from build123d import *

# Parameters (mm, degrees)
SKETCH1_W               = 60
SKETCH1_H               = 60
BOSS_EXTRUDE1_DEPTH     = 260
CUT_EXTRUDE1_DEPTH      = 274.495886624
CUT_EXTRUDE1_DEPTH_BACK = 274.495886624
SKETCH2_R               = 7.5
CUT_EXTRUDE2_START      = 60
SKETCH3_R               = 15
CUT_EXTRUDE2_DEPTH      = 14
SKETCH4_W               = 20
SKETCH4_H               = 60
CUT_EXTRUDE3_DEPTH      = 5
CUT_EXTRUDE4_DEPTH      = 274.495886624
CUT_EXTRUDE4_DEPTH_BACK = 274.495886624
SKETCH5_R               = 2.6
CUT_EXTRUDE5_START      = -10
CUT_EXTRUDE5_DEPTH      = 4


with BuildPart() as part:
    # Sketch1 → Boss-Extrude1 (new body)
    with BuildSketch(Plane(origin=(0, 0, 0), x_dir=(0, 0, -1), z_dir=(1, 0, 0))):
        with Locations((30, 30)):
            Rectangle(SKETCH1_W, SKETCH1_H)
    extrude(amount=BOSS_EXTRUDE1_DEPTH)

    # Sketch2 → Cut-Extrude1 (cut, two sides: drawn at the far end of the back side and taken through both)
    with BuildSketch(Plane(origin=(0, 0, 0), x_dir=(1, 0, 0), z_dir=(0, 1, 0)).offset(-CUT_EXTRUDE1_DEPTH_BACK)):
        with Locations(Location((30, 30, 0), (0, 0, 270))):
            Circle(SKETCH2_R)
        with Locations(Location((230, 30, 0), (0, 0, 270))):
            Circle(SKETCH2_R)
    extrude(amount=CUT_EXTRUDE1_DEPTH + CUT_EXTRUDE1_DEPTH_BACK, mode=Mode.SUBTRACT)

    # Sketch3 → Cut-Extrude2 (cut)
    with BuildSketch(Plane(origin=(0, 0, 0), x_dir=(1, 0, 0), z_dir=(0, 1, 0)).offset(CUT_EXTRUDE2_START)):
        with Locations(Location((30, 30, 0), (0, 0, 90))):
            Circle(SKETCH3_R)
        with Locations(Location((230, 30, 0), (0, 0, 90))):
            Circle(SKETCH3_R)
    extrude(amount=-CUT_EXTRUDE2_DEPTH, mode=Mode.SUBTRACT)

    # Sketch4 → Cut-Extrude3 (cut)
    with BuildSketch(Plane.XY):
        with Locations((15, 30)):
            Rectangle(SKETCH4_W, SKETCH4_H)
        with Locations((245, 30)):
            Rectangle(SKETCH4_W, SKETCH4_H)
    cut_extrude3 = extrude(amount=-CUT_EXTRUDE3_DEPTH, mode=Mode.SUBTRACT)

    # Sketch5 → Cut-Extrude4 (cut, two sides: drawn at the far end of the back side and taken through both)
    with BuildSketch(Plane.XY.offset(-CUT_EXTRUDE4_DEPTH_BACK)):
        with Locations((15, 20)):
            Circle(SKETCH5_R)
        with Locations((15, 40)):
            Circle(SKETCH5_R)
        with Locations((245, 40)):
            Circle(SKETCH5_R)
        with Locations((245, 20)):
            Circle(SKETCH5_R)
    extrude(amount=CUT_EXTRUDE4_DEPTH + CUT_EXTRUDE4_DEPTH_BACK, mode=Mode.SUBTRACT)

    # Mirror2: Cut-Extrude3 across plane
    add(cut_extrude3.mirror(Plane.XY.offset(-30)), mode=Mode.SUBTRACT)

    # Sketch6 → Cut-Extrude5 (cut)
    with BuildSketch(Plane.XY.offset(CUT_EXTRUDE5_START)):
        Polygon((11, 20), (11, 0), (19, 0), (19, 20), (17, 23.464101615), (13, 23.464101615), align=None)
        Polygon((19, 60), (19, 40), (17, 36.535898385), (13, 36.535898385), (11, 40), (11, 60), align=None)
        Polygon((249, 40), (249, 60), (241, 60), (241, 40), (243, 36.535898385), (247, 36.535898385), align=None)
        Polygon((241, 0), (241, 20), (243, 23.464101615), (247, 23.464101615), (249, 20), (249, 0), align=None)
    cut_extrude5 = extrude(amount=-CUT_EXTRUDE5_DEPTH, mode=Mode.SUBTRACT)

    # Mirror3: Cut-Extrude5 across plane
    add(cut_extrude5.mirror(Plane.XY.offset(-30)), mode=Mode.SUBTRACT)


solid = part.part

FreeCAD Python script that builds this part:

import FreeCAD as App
import Part
import Sketcher

V = App.Vector
Q = App.Units.Quantity

doc = App.newDocument("Part")
body = doc.addObject("PartDesign::Body", "Body")

# Sketch on YZ plane
sketch1 = body.newObject("Sketcher::SketchObject", "Sketch")
sketch1.AttachmentSupport = (doc.getObject("YZ_Plane"), [""])
sketch1.MapMode = "FlatFace"
sketch1.addGeometry(Part.LineSegment(V(60, 0, 0), V(0, 0, 0)), False)
sketch1.addGeometry(Part.LineSegment(V(0, 0, 0), V(0, -60, 0)), False)
sketch1.addGeometry(Part.LineSegment(V(0, -60, 0), V(60, -60, 0)), False)
sketch1.addGeometry(Part.LineSegment(V(60, -60, 0), V(60, 0, 0)), False)
sketch1.addConstraint(Sketcher.Constraint("Coincident", 0, 2, 1, 1))
sketch1.addConstraint(Sketcher.Constraint("Coincident", 1, 2, 2, 1))
sketch1.addConstraint(Sketcher.Constraint("Coincident", 2, 2, 3, 1))
sketch1.addConstraint(Sketcher.Constraint("Coincident", 3, 2, 0, 1))
sketch1.addConstraint(Sketcher.Constraint("Horizontal", 0))
sketch1.addConstraint(Sketcher.Constraint("Vertical", 1))
sketch1.addConstraint(Sketcher.Constraint("Horizontal", 2))
sketch1.addConstraint(Sketcher.Constraint("Vertical", 3))
sketch1.addConstraint(Sketcher.Constraint("Coincident", 0, 2, -1, 1))
sketch1.addConstraint(Sketcher.Constraint("Equal", 2, 1))
sketch1.addConstraint(Sketcher.Constraint("DistanceX", 0, 2, 0, 1, Q("60 mm")))
pad1 = body.newObject("PartDesign::Pad", "Pad")
pad1.Profile = sketch1
pad1.Length = 260

# Sketch on XZ plane
sketch2 = body.newObject("Sketcher::SketchObject", "Sketch001")
sketch2.AttachmentSupport = (doc.getObject("XZ_Plane"), [""])
sketch2.MapMode = "FlatFace"
sketch2.addGeometry(Part.Circle(V(30, -30, 0), V(0, 0, 1), 8), False)
sketch2.addGeometry(Part.Circle(V(230, -30, 0), V(0, 0, 1), 8), False)
sketch2.addConstraint(Sketcher.Constraint("Equal", 0, 1))
sketch2.addConstraint(Sketcher.Constraint("Horizontal", 0, 3, 1, 3))
sketch2.addConstraint(Sketcher.Constraint("Diameter", 0, Q("15 mm")))
sketch2.addConstraint(Sketcher.Constraint("DistanceX", -1, 1, 0, 3, Q("30 mm")))
sketch2.addConstraint(Sketcher.Constraint("DistanceY", 0, 3, -1, 1, Q("30 mm")))
sketch2.addConstraint(Sketcher.Constraint("DistanceX", -1, 1, 1, 3, Q("230 mm")))
pocket1 = body.newObject("PartDesign::Pocket", "Pocket")
pocket1.Profile = sketch2
pocket1.Type = "ThroughAll"
pocket1.Midplane = True

# Sketch on XZ plane
sketch3 = body.newObject("Sketcher::SketchObject", "Sketch002")
sketch3.AttachmentSupport = (doc.getObject("XZ_Plane"), [""])
sketch3.MapMode = "FlatFace"
sketch3.AttachmentOffset = App.Placement(V(0, 0, -60), App.Rotation())
sketch3.addGeometry(Part.Circle(V(30, -30, 0), V(0, 0, 1), 15), False)
sketch3.addGeometry(Part.Circle(V(230, -30, 0), V(0, 0, 1), 15), False)
sketch3.addConstraint(Sketcher.Constraint("Equal", 0, 1))
sketch3.addConstraint(Sketcher.Constraint("Horizontal", 0, 3, 1, 3))
sketch3.addConstraint(Sketcher.Constraint("Diameter", 0, Q("30 mm")))
sketch3.addConstraint(Sketcher.Constraint("DistanceX", -1, 1, 0, 3, Q("30 mm")))
sketch3.addConstraint(Sketcher.Constraint("DistanceY", 0, 3, -1, 1, Q("30 mm")))
sketch3.addConstraint(Sketcher.Constraint("DistanceX", -1, 1, 1, 3, Q("230 mm")))
pocket2 = body.newObject("PartDesign::Pocket", "Pocket001")
pocket2.Profile = sketch3
pocket2.Length = 14
pocket2.Reversed = True

# Sketch on XY plane
sketch4 = body.newObject("Sketcher::SketchObject", "Sketch003")
sketch4.AttachmentSupport = (doc.getObject("XY_Plane"), [""])
sketch4.MapMode = "FlatFace"
sketch4.addGeometry(Part.LineSegment(V(5, 60, 0), V(5, 0, 0)), False)
sketch4.addGeometry(Part.LineSegment(V(5, 0, 0), V(25, 0, 0)), False)
sketch4.addGeometry(Part.LineSegment(V(25, 0, 0), V(25, 60, 0)), False)
sketch4.addGeometry(Part.LineSegment(V(25, 60, 0), V(5, 60, 0)), False)
sketch4.addGeometry(Part.LineSegment(V(235, 60, 0), V(235, 0, 0)), False)
sketch4.addGeometry(Part.LineSegment(V(235, 0, 0), V(255, 0, 0)), False)
sketch4.addGeometry(Part.LineSegment(V(255, 0, 0), V(255, 60, 0)), False)
sketch4.addGeometry(Part.LineSegment(V(255, 60, 0), V(235, 60, 0)), False)
sketch4.addConstraint(Sketcher.Constraint("Coincident", 0, 2, 1, 1))
sketch4.addConstraint(Sketcher.Constraint("Coincident", 1, 2, 2, 1))
sketch4.addConstraint(Sketcher.Constraint("Coincident", 2, 2, 3, 1))
sketch4.addConstraint(Sketcher.Constraint("Coincident", 3, 2, 0, 1))
sketch4.addConstraint(Sketcher.Constraint("Coincident", 4, 2, 5, 1))
sketch4.addConstraint(Sketcher.Constraint("Coincident", 5, 2, 6, 1))
sketch4.addConstraint(Sketcher.Constraint("Coincident", 6, 2, 7, 1))
sketch4.addConstraint(Sketcher.Constraint("Coincident", 7, 2, 4, 1))
sketch4.addConstraint(Sketcher.Constraint("Vertical", 0))
sketch4.addConstraint(Sketcher.Constraint("Horizontal", 1))
sketch4.addConstraint(Sketcher.Constraint("Vertical", 2))
sketch4.addConstraint(Sketcher.Constraint("Horizontal", 3))
sketch4.addConstraint(Sketcher.Constraint("Vertical", 4))
sketch4.addConstraint(Sketcher.Constraint("Horizontal", 5))
sketch4.addConstraint(Sketcher.Constraint("Vertical", 6))
sketch4.addConstraint(Sketcher.Constraint("Horizontal", 7))
sketch4.addConstraint(Sketcher.Constraint("PointOnObject", 0, 2, -1))
sketch4.addConstraint(Sketcher.Constraint("PointOnObject", 4, 2, -1))
sketch4.addConstraint(Sketcher.Constraint("Horizontal", 3, 2, 6, 2))
sketch4.addConstraint(Sketcher.Constraint("Equal", 3, 5))
sketch4.addConstraint(Sketcher.Constraint("DistanceX", 1, 1, 1, 2, Q("20 mm")))
sketch4.addConstraint(Sketcher.Constraint("DistanceY", 0, 2, 0, 1, Q("60 mm")))
sketch4.addConstraint(Sketcher.Constraint("DistanceX", -1, 1, 0, 2, Q("5 mm")))
sketch4.addConstraint(Sketcher.Constraint("DistanceX", -1, 1, 4, 2, Q("235 mm")))
pocket3 = body.newObject("PartDesign::Pocket", "Pocket002")
pocket3.Profile = sketch4
pocket3.Length = 5

# Sketch on XY plane
sketch5 = body.newObject("Sketcher::SketchObject", "Sketch004")
sketch5.AttachmentSupport = (doc.getObject("XY_Plane"), [""])
sketch5.MapMode = "FlatFace"
sketch5.addGeometry(Part.Circle(V(15, 20, 0), V(0, 0, 1), 2.6), False)
sketch5.addGeometry(Part.Circle(V(15, 40, 0), V(0, 0, 1), 2.6), False)
sketch5.addGeometry(Part.Circle(V(245, 40, 0), V(0, 0, 1), 2.6), False)
sketch5.addGeometry(Part.Circle(V(245, 20, 0), V(0, 0, 1), 2.6), False)
sketch5.addConstraint(Sketcher.Constraint("Equal", 0, 1))
sketch5.addConstraint(Sketcher.Constraint("Equal", 1, 2))
sketch5.addConstraint(Sketcher.Constraint("Equal", 2, 3))
sketch5.addConstraint(Sketcher.Constraint("Horizontal", 1, 3, 2, 3))
sketch5.addConstraint(Sketcher.Constraint("Horizontal", 0, 3, 3, 3))
sketch5.addConstraint(Sketcher.Constraint("Vertical", 0, 3, 1, 3))
sketch5.addConstraint(Sketcher.Constraint("Vertical", 2, 3, 3, 3))
sketch5.addConstraint(Sketcher.Constraint("Diameter", 0, Q("5.2 mm")))
sketch5.addConstraint(Sketcher.Constraint("DistanceX", -1, 1, 0, 3, Q("15 mm")))
sketch5.addConstraint(Sketcher.Constraint("DistanceY", -1, 1, 0, 3, Q("20 mm")))
sketch5.addConstraint(Sketcher.Constraint("DistanceY", -1, 1, 1, 3, Q("40 mm")))
sketch5.addConstraint(Sketcher.Constraint("DistanceX", -1, 1, 2, 3, Q("245 mm")))
pocket4 = body.newObject("PartDesign::Pocket", "Pocket003")
pocket4.Profile = sketch5
pocket4.Type = "ThroughAll"
pocket4.Midplane = True
doc.recompute()

datumplane = body.newObject("PartDesign::Plane", "DatumPlane")
datumplane.AttachmentSupport = (doc.getObject("XY_Plane"), [""])
datumplane.MapMode = "FlatFace"
datumplane.AttachmentOffset = App.Placement(V(0, 0, -30), App.Rotation())
mirrored = body.newObject("PartDesign::Mirrored", "Mirrored")
mirrored.Originals = [pocket3]
mirrored.MirrorPlane = (datumplane, [""])
body.Tip = mirrored

# Sketch on XY plane
sketch6 = body.newObject("Sketcher::SketchObject", "Sketch005")
sketch6.AttachmentSupport = (doc.getObject("XY_Plane"), [""])
sketch6.MapMode = "FlatFace"
sketch6.AttachmentOffset = App.Placement(V(0, 0, -10), App.Rotation())
sketch6.addGeometry(Part.LineSegment(V(11, 20, 0), V(11, 0, 0)), False)
sketch6.addGeometry(Part.LineSegment(V(11, 0, 0), V(19, 0, 0)), False)
sketch6.addGeometry(Part.LineSegment(V(19, 0, 0), V(19, 20, 0)), False)
sketch6.addGeometry(Part.LineSegment(V(19, 20, 0), V(17, 23.5, 0)), False)
sketch6.addGeometry(Part.LineSegment(V(17, 23.5, 0), V(13, 23.5, 0)), False)
sketch6.addGeometry(Part.LineSegment(V(13, 23.5, 0), V(11, 20, 0)), False)
sketch6.addGeometry(Part.LineSegment(V(19, 40, 0), V(19, 60, 0)), False)
sketch6.addGeometry(Part.LineSegment(V(19, 60, 0), V(11, 60, 0)), False)
sketch6.addGeometry(Part.LineSegment(V(11, 60, 0), V(11, 40, 0)), False)
sketch6.addGeometry(Part.LineSegment(V(11, 40, 0), V(13, 36.5, 0)), False)
sketch6.addGeometry(Part.LineSegment(V(13, 36.5, 0), V(17, 36.5, 0)), False)
sketch6.addGeometry(Part.LineSegment(V(17, 36.5, 0), V(19, 40, 0)), False)
sketch6.addGeometry(Part.LineSegment(V(249, 40, 0), V(249, 60, 0)), False)
sketch6.addGeometry(Part.LineSegment(V(249, 60, 0), V(241, 60, 0)), False)
sketch6.addGeometry(Part.LineSegment(V(241, 60, 0), V(241, 40, 0)), False)
sketch6.addGeometry(Part.LineSegment(V(241, 40, 0), V(243, 36.5, 0)), False)
sketch6.addGeometry(Part.LineSegment(V(243, 36.5, 0), V(247, 36.5, 0)), False)
sketch6.addGeometry(Part.LineSegment(V(247, 36.5, 0), V(249, 40, 0)), False)
sketch6.addGeometry(Part.LineSegment(V(241, 20, 0), V(241, 0, 0)), False)
sketch6.addGeometry(Part.LineSegment(V(241, 0, 0), V(249, 0, 0)), False)
sketch6.addGeometry(Part.LineSegment(V(249, 0, 0), V(249, 20, 0)), False)
sketch6.addGeometry(Part.LineSegment(V(249, 20, 0), V(247, 23.5, 0)), False)
sketch6.addGeometry(Part.LineSegment(V(247, 23.5, 0), V(243, 23.5, 0)), False)
sketch6.addGeometry(Part.LineSegment(V(243, 23.5, 0), V(241, 20, 0)), False)
sketch6.addConstraint(Sketcher.Constraint("Coincident", 0, 2, 1, 1))
sketch6.addConstraint(Sketcher.Constraint("Coincident", 1, 2, 2, 1))
sketch6.addConstraint(Sketcher.Constraint("Coincident", 2, 2, 3, 1))
sketch6.addConstraint(Sketcher.Constraint("Coincident", 3, 2, 4, 1))
sketch6.addConstraint(Sketcher.Constraint("Coincident", 4, 2, 5, 1))
sketch6.addConstraint(Sketcher.Constraint("Coincident", 5, 2, 0, 1))
sketch6.addConstraint(Sketcher.Constraint("Coincident", 6, 2, 7, 1))
sketch6.addConstraint(Sketcher.Constraint("Coincident", 7, 2, 8, 1))
sketch6.addConstraint(Sketcher.Constraint("Coincident", 8, 2, 9, 1))
sketch6.addConstraint(Sketcher.Constraint("Coincident", 9, 2, 10, 1))
sketch6.addConstraint(Sketcher.Constraint("Coincident", 10, 2, 11, 1))
sketch6.addConstraint(Sketcher.Constraint("Coincident", 11, 2, 6, 1))
sketch6.addConstraint(Sketcher.Constraint("Coincident", 12, 2, 13, 1))
sketch6.addConstraint(Sketcher.Constraint("Coincident", 13, 2, 14, 1))
sketch6.addConstraint(Sketcher.Constraint("Coincident", 14, 2, 15, 1))
sketch6.addConstraint(Sketcher.Constraint("Coincident", 15, 2, 16, 1))
sketch6.addConstraint(Sketcher.Constraint("Coincident", 16, 2, 17, 1))
sketch6.addConstraint(Sketcher.Constraint("Coincident", 17, 2, 12, 1))
sketch6.addConstraint(Sketcher.Constraint("Coincident", 18, 2, 19, 1))
sketch6.addConstraint(Sketcher.Constraint("Coincident", 19, 2, 20, 1))
sketch6.addConstraint(Sketcher.Constraint("Coincident", 20, 2, 21, 1))
sketch6.addConstraint(Sketcher.Constraint("Coincident", 21, 2, 22, 1))
sketch6.addConstraint(Sketcher.Constraint("Coincident", 22, 2, 23, 1))
sketch6.addConstraint(Sketcher.Constraint("Coincident", 23, 2, 18, 1))
sketch6.addConstraint(Sketcher.Constraint("Vertical", 0))
sketch6.addConstraint(Sketcher.Constraint("Horizontal", 1))
sketch6.addConstraint(Sketcher.Constraint("Vertical", 2))
sketch6.addConstraint(Sketcher.Constraint("Horizontal", 4))
sketch6.addConstraint(Sketcher.Constraint("Vertical", 6))
sketch6.addConstraint(Sketcher.Constraint("Horizontal", 7))
sketch6.addConstraint(Sketcher.Constraint("Vertical", 8))
sketch6.addConstraint(Sketcher.Constraint("Horizontal", 10))
sketch6.addConstraint(Sketcher.Constraint("Vertical", 12))
sketch6.addConstraint(Sketcher.Constraint("Horizontal", 13))
sketch6.addConstraint(Sketcher.Constraint("Vertical", 14))
sketch6.addConstraint(Sketcher.Constraint("Horizontal", 16))
sketch6.addConstraint(Sketcher.Constraint("Vertical", 18))
sketch6.addConstraint(Sketcher.Constraint("Horizontal", 19))
sketch6.addConstraint(Sketcher.Constraint("Vertical", 20))
sketch6.addConstraint(Sketcher.Constraint("Horizontal", 22))
sketch6.addConstraint(Sketcher.Constraint("PointOnObject", 0, 2, -1))
sketch6.addConstraint(Sketcher.Constraint("PointOnObject", 18, 2, -1))
sketch6.addConstraint(Sketcher.Constraint("Parallel", 3, 9))
sketch6.addConstraint(Sketcher.Constraint("Parallel", 5, 11))
sketch6.addConstraint(Sketcher.Constraint("Parallel", 9, 15))
sketch6.addConstraint(Sketcher.Constraint("Parallel", 11, 17))
sketch6.addConstraint(Sketcher.Constraint("Parallel", 15, 21))
sketch6.addConstraint(Sketcher.Constraint("Parallel", 17, 23))
sketch6.addConstraint(Sketcher.Constraint("Horizontal", 2, 2, 5, 2))
sketch6.addConstraint(Sketcher.Constraint("Horizontal", 8, 2, 11, 2))
sketch6.addConstraint(Sketcher.Constraint("Horizontal", 7, 2, 12, 2))
sketch6.addConstraint(Sketcher.Constraint("Horizontal", 11, 2, 14, 2))
sketch6.addConstraint(Sketcher.Constraint("Horizontal", 10, 2, 15, 2))
sketch6.addConstraint(Sketcher.Constraint("Horizontal", 14, 2, 17, 2))
sketch6.addConstraint(Sketcher.Constraint("Horizontal", 5, 2, 20, 2))
sketch6.addConstraint(Sketcher.Constraint("Horizontal", 4, 2, 21, 2))
sketch6.addConstraint(Sketcher.Constraint("Horizontal", 20, 2, 23, 2))
sketch6.addConstraint(Sketcher.Constraint("Vertical", 2, 2, 6, 2))
sketch6.addConstraint(Sketcher.Constraint("Vertical", 5, 2, 7, 2))
sketch6.addConstraint(Sketcher.Constraint("Vertical", 4, 2, 9, 2))
sketch6.addConstraint(Sketcher.Constraint("Vertical", 3, 2, 10, 2))
sketch6.addConstraint(Sketcher.Constraint("Vertical", 14, 2, 18, 2))
sketch6.addConstraint(Sketcher.Constraint("Vertical", 17, 2, 19, 2))
sketch6.addConstraint(Sketcher.Constraint("Equal", 7, 13))
sketch6.addConstraint(Sketcher.Constraint("Equal", 2, 6))
sketch6.addConstraint(Sketcher.Constraint("DistanceX", 1, 1, 1, 2, Q("8 mm")))
sketch6.addConstraint(Sketcher.Constraint("DistanceX", 4, 2, 4, 1, Q("4 mm")))
sketch6.addConstraint(Sketcher.Constraint("DistanceY", 0, 2, 0, 1, Q("20 mm")))
sketch6.addConstraint(Sketcher.Constraint("Angle", 3, Q("120 deg")))
sketch6.addConstraint(Sketcher.Constraint("DistanceX", -1, 1, 0, 2, Q("11 mm")))
sketch6.addConstraint(Sketcher.Constraint("DistanceY", -1, 1, 6, 2, Q("60 mm")))
sketch6.addConstraint(Sketcher.Constraint("DistanceX", -1, 1, 12, 2, Q("249 mm")))
pocket5 = body.newObject("PartDesign::Pocket", "Pocket004")
pocket5.Profile = sketch6
pocket5.Length = 4
doc.recompute()

datumplane2 = body.newObject("PartDesign::Plane", "DatumPlane001")
datumplane2.AttachmentSupport = (doc.getObject("XY_Plane"), [""])
datumplane2.MapMode = "FlatFace"
datumplane2.AttachmentOffset = App.Placement(V(0, 0, -30), App.Rotation())
mirrored2 = body.newObject("PartDesign::Mirrored", "Mirrored001")
mirrored2.Originals = [pocket5]
mirrored2.MirrorPlane = (datumplane2, [""])
body.Tip = mirrored2

doc.recompute()
